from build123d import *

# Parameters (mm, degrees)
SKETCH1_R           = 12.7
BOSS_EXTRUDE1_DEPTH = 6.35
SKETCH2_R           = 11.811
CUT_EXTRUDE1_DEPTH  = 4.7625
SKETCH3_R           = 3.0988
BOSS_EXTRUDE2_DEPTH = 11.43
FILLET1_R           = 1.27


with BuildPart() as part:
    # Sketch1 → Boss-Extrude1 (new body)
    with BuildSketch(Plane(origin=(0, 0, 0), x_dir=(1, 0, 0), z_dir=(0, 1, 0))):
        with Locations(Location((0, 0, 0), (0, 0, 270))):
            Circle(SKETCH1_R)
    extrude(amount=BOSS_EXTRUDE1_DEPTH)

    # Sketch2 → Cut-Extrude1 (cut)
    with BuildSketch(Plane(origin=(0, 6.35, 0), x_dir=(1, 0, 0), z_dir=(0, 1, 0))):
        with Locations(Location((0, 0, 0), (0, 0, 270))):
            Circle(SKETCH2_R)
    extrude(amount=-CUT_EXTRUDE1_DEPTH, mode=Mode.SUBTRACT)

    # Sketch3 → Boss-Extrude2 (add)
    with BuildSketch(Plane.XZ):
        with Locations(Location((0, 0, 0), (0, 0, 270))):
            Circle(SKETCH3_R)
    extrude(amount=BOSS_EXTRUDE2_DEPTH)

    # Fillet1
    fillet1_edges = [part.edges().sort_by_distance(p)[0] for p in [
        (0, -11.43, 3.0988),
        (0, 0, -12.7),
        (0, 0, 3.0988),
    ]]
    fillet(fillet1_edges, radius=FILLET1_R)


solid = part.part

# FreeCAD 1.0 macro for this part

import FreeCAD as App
import Part
import Sketcher
Q = App.Units.Quantity


def edges_at(feature, points):
    """Names of the edges that pass closest to the given points."""
    edges = feature.Shape.Edges
    near = lambda p: min(range(len(edges)), key=lambda i: edges[i].distToShape(Part.Vertex(*p))[0])
    return sorted({f"Edge{near(p) + 1}" for p in points})

doc = App.newDocument("Part")
body = doc.addObject("PartDesign::Body", "Body")

sketch1 = body.newObject("Sketcher::SketchObject", "Sketch")
sketch1.AttachmentSupport = (doc.getObject("XZ_Plane"), [""])
sketch1.MapMode = "FlatFace"
sketch1.addGeometry(Part.Circle(App.Vector(0, 0, 0), App.Vector(0, 0, 1), 12.7), False)
sketch1.addConstraint([
    Sketcher.Constraint("Coincident", 0, 3, -1, 1),
    Sketcher.Constraint("Diameter", 0, Q("1 in")),
])
pad1 = body.newObject("PartDesign::Pad", "Pad")
pad1.Profile = sketch1
pad1.Length = Q("0.25 in")
pad1.Reversed = True

sketch2 = body.newObject("Sketcher::SketchObject", "Sketch001")
sketch2.AttachmentSupport = (doc.getObject("XZ_Plane"), [""])
sketch2.MapMode = "FlatFace"
sketch2.AttachmentOffset = App.Placement(App.Vector(0, 0, -0.25 * 25.4), App.Rotation())
sketch2.addGeometry(Part.Circle(App.Vector(0, 0, 0), App.Vector(0, 0, 1), 11.811), False)
sketch2.addConstraint([
    Sketcher.Constraint("Coincident", 0, 3, -1, 1),
    Sketcher.Constraint("Diameter", 0, Q("0.93 in")),
])
pocket1 = body.newObject("PartDesign::Pocket", "Pocket")
pocket1.Profile = sketch2
pocket1.Length = Q("0.1875 in")
pocket1.Reversed = True

sketch3 = body.newObject("Sketcher::SketchObject", "Sketch002")
sketch3.AttachmentSupport = (doc.getObject("XZ_Plane"), [""])
sketch3.MapMode = "FlatFace"
sketch3.addGeometry(Part.Circle(App.Vector(0, 0, 0), App.Vector(0, 0, 1), 3.0988), False)
sketch3.addConstraint([
    Sketcher.Constraint("Coincident", 0, 3, -1, 1),
    Sketcher.Constraint("Diameter", 0, Q("0.244 in")),
])
pad2 = body.newObject("PartDesign::Pad", "Pad001")
pad2.Profile = sketch3
pad2.Length = Q("0.45 in")
doc.recompute()

fillet = body.newObject("PartDesign::Fillet", "Fillet")
fillet.Base = (pad2, edges_at(pad2, [(0, -11.43, 3.099), (0, 0, -12.7), (0, 0, 3.099)]))
fillet.Radius = Q("0.05 in")

doc.recompute()
